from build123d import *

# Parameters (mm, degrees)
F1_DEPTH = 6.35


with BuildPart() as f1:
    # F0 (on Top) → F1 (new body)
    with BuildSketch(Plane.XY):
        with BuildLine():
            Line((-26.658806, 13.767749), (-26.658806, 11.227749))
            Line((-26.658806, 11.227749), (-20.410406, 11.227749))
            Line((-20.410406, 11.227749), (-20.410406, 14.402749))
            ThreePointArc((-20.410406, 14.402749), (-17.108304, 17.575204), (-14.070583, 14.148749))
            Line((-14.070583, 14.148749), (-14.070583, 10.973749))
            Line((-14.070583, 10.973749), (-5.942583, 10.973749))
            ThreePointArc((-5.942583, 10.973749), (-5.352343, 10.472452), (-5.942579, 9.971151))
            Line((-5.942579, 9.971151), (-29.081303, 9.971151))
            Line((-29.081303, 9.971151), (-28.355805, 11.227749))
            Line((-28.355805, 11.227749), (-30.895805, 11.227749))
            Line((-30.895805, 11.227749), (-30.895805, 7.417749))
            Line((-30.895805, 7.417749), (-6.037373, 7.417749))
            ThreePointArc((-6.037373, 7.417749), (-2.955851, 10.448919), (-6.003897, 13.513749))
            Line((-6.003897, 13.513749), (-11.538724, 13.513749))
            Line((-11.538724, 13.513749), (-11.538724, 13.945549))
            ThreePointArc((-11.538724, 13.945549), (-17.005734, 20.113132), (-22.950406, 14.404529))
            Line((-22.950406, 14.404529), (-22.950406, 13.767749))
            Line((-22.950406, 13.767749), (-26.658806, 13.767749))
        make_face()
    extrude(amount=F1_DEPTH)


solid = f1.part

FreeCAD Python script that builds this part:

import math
import FreeCAD as App
import Part
import Sketcher
from FreeCAD import Vector
Q = App.Units.Quantity

doc = App.newDocument("Part")
params = doc.addObject("Spreadsheet::Sheet", "Params")
for row, (alias, value) in enumerate([
    ("sketch1_radius", "0.02 in"),
    ("sketch1_width", "0.1 in"),
    ("sketch1_radius2", "0.125 in"),
    ("sketch1_radius3", "0.225 in"),
    ("sketch1_width2", "0.32 in"),
    ("pad1_length", "0.25 in"),
], start=1):
    params.set(f"A{row}", alias)
    params.set(f"B{row}", "=" + value)
    params.setAlias(f"B{row}", alias)

body = doc.addObject("PartDesign::Body", "Body")

# Sketch on XY plane
sketch1 = body.newObject("Sketcher::SketchObject", "Sketch")
sketch1.AttachmentSupport = (doc.getObject("XY_Plane"), [""])
sketch1.MapMode = "FlatFace"
sketch1.addGeometry([
    Part.LineSegment(Vector(-26.66, 13.77, 0), Vector(-26.66, 11.23, 0)),  # 0
    Part.LineSegment(Vector(-26.66, 11.23, 0), Vector(-20.41, 11.23, 0)),  # 1
    Part.LineSegment(Vector(-20.41, 11.23, 0), Vector(-20.41, 14.4, 0)),  # 2
    Part.ArcOfCircle(Part.Circle(Vector(-17.24, 14.4, 0), Vector(0, 0, 1), 3.17), math.radians(-5), math.radians(180)),  # 3
    Part.LineSegment(Vector(-14.07, 14.15, 0), Vector(-14.07, 10.97, 0)),  # 4
    Part.LineSegment(Vector(-14.07, 10.97, 0), Vector(-5.94, 10.97, 0)),  # 5
    Part.ArcOfCircle(Part.Circle(Vector(-5.86, 10.47, 0), Vector(0, 0, 1), 0.51), math.radians(-99), math.radians(99)),  # 6
    Part.LineSegment(Vector(-5.94, 9.97, 0), Vector(-29.08, 9.97, 0)),  # 7
    Part.LineSegment(Vector(-29.08, 9.97, 0), Vector(-28.36, 11.23, 0)),  # 8
    Part.LineSegment(Vector(-28.36, 11.23, 0), Vector(-30.9, 11.23, 0)),  # 9
    Part.LineSegment(Vector(-30.9, 11.23, 0), Vector(-30.9, 7.42, 0)),  # 10
    Part.LineSegment(Vector(-30.9, 7.42, 0), Vector(-6.04, 7.42, 0)),  # 11
    Part.ArcOfCircle(Part.Circle(Vector(-6, 10.47, 0), Vector(0, 0, 1), 3.05), math.radians(-91), math.radians(90)),  # 12
    Part.LineSegment(Vector(-6, 13.51, 0), Vector(-11.54, 13.51, 0)),  # 13
    Part.LineSegment(Vector(-11.54, 13.51, 0), Vector(-11.54, 13.95, 0)),  # 14
    Part.ArcOfCircle(Part.Circle(Vector(-17.24, 14.4, 0), Vector(0, 0, 1), 5.71), math.radians(-5), math.radians(180)),  # 15
    Part.LineSegment(Vector(-22.95, 14.4, 0), Vector(-22.95, 13.77, 0)),  # 16
    Part.LineSegment(Vector(-22.95, 13.77, 0), Vector(-26.66, 13.77, 0)),  # 17
], False)
sketch1.addConstraint([
    Sketcher.Constraint("Coincident", 0, 2, 1, 1),
    Sketcher.Constraint("Coincident", 1, 2, 2, 1),
    Sketcher.Constraint("Tangent", 2, 2, 3, 2),
    Sketcher.Constraint("Coincident", 3, 1, 4, 1),
    Sketcher.Constraint("Coincident", 4, 2, 5, 1),
    Sketcher.Constraint("Coincident", 5, 2, 6, 2),
    Sketcher.Constraint("Coincident", 6, 1, 7, 1),
    Sketcher.Constraint("Coincident", 7, 2, 8, 1),
    Sketcher.Constraint("Coincident", 8, 2, 9, 1),
    Sketcher.Constraint("Coincident", 9, 2, 10, 1),
    Sketcher.Constraint("Coincident", 10, 2, 11, 1),
    Sketcher.Constraint("Coincident", 11, 2, 12, 1),
    Sketcher.Constraint("Tangent", 12, 2, 13, 1),
    Sketcher.Constraint("Coincident", 13, 2, 14, 1),
    Sketcher.Constraint("Coincident", 14, 2, 15, 1),
    Sketcher.Constraint("Coincident", 15, 2, 16, 1),
    Sketcher.Constraint("Coincident", 16, 2, 17, 1),
    Sketcher.Constraint("Coincident", 17, 2, 0, 1),
    Sketcher.Constraint("Vertical", 0),
    Sketcher.Constraint("Horizontal", 1),
    Sketcher.Constraint("Vertical", 2),
    Sketcher.Constraint("Vertical", 4),
    Sketcher.Constraint("Horizontal", 5),
    Sketcher.Constraint("Horizontal", 7),
    Sketcher.Constraint("Horizontal", 9),
    Sketcher.Constraint("Vertical", 10),
    Sketcher.Constraint("Horizontal", 11),
    Sketcher.Constraint("Horizontal", 13),
    Sketcher.Constraint("Vertical", 14),
    Sketcher.Constraint("Vertical", 16),
    Sketcher.Constraint("Horizontal", 17),
    Sketcher.Constraint("Coincident", 15, 3, 3, 3),
    Sketcher.Constraint("Horizontal", 1, 2, 8, 2),
    Sketcher.Constraint("Equal", 9, 0),
    Sketcher.Constraint("Equal", 2, 4),
    Sketcher.Constraint("Radius", 6, Q("0.02 in")),
    Sketcher.Constraint("DistanceX", 9, 2, 9, 1, Q("0.1 in")),
    Sketcher.Constraint("Radius", 3, Q("0.125 in")),
    Sketcher.Constraint("Radius", 15, Q("0.225 in")),
    Sketcher.Constraint("DistanceX", 5, 1, 5, 2, Q("0.32 in")),
    Sketcher.Constraint("DistanceY", 10, 2, 10, 1, Q("0.15 in")),
    Sketcher.Constraint("DistanceY", 5, 2, 12, 2, Q("0.1 in")),
    Sketcher.Constraint("DistanceX", 1, 1, 1, 2, Q("0.246 in")),
    Sketcher.Constraint("DistanceY", 2, 1, 2, 2, Q("0.125 in")),
    Sketcher.Constraint("DistanceY", 14, 1, 14, 2, Q("0.017 in")),
    Sketcher.Constraint("DistanceY", 3, 1, 3, 3, Q("0.01 in")),
    Sketcher.Constraint("DistanceX", 4, 2, 6, 1, Q("0.3200002 in")),
    Sketcher.Constraint("Radius", 12, 3.048092),
    Sketcher.Constraint("DistanceY", 16, 2, 16, 1, 0.63678),
    Sketcher.Constraint("DistanceY", 6, 3, 3, 3, 3.930299),
    Sketcher.Constraint("DistanceX", 8, 2, 0, 2, 1.696999),
    Sketcher.Constraint("DistanceX", 7, 2, 7, 1, 23.138724),
    Sketcher.Constraint("DistanceX", 11, 1, 11, 2, 24.858432),
    Sketcher.Constraint("DistanceY", -1, 1, 3, 3, 14.402749),
    Sketcher.Constraint("DistanceX", 6, 1, -1, 1, 5.942579),
])
sketch1.setExpression("Constraints[35]", "Params.sketch1_radius")
sketch1.setExpression("Constraints[36]", "Params.sketch1_width")
sketch1.setExpression("Constraints[37]", "Params.sketch1_radius2")
sketch1.setExpression("Constraints[38]", "Params.sketch1_radius3")
sketch1.setExpression("Constraints[39]", "Params.sketch1_width2")
pad1 = body.newObject("PartDesign::Pad", "Pad")
pad1.Profile = sketch1
pad1.setExpression("Length", "Params.pad1_length")

doc.recompute()
